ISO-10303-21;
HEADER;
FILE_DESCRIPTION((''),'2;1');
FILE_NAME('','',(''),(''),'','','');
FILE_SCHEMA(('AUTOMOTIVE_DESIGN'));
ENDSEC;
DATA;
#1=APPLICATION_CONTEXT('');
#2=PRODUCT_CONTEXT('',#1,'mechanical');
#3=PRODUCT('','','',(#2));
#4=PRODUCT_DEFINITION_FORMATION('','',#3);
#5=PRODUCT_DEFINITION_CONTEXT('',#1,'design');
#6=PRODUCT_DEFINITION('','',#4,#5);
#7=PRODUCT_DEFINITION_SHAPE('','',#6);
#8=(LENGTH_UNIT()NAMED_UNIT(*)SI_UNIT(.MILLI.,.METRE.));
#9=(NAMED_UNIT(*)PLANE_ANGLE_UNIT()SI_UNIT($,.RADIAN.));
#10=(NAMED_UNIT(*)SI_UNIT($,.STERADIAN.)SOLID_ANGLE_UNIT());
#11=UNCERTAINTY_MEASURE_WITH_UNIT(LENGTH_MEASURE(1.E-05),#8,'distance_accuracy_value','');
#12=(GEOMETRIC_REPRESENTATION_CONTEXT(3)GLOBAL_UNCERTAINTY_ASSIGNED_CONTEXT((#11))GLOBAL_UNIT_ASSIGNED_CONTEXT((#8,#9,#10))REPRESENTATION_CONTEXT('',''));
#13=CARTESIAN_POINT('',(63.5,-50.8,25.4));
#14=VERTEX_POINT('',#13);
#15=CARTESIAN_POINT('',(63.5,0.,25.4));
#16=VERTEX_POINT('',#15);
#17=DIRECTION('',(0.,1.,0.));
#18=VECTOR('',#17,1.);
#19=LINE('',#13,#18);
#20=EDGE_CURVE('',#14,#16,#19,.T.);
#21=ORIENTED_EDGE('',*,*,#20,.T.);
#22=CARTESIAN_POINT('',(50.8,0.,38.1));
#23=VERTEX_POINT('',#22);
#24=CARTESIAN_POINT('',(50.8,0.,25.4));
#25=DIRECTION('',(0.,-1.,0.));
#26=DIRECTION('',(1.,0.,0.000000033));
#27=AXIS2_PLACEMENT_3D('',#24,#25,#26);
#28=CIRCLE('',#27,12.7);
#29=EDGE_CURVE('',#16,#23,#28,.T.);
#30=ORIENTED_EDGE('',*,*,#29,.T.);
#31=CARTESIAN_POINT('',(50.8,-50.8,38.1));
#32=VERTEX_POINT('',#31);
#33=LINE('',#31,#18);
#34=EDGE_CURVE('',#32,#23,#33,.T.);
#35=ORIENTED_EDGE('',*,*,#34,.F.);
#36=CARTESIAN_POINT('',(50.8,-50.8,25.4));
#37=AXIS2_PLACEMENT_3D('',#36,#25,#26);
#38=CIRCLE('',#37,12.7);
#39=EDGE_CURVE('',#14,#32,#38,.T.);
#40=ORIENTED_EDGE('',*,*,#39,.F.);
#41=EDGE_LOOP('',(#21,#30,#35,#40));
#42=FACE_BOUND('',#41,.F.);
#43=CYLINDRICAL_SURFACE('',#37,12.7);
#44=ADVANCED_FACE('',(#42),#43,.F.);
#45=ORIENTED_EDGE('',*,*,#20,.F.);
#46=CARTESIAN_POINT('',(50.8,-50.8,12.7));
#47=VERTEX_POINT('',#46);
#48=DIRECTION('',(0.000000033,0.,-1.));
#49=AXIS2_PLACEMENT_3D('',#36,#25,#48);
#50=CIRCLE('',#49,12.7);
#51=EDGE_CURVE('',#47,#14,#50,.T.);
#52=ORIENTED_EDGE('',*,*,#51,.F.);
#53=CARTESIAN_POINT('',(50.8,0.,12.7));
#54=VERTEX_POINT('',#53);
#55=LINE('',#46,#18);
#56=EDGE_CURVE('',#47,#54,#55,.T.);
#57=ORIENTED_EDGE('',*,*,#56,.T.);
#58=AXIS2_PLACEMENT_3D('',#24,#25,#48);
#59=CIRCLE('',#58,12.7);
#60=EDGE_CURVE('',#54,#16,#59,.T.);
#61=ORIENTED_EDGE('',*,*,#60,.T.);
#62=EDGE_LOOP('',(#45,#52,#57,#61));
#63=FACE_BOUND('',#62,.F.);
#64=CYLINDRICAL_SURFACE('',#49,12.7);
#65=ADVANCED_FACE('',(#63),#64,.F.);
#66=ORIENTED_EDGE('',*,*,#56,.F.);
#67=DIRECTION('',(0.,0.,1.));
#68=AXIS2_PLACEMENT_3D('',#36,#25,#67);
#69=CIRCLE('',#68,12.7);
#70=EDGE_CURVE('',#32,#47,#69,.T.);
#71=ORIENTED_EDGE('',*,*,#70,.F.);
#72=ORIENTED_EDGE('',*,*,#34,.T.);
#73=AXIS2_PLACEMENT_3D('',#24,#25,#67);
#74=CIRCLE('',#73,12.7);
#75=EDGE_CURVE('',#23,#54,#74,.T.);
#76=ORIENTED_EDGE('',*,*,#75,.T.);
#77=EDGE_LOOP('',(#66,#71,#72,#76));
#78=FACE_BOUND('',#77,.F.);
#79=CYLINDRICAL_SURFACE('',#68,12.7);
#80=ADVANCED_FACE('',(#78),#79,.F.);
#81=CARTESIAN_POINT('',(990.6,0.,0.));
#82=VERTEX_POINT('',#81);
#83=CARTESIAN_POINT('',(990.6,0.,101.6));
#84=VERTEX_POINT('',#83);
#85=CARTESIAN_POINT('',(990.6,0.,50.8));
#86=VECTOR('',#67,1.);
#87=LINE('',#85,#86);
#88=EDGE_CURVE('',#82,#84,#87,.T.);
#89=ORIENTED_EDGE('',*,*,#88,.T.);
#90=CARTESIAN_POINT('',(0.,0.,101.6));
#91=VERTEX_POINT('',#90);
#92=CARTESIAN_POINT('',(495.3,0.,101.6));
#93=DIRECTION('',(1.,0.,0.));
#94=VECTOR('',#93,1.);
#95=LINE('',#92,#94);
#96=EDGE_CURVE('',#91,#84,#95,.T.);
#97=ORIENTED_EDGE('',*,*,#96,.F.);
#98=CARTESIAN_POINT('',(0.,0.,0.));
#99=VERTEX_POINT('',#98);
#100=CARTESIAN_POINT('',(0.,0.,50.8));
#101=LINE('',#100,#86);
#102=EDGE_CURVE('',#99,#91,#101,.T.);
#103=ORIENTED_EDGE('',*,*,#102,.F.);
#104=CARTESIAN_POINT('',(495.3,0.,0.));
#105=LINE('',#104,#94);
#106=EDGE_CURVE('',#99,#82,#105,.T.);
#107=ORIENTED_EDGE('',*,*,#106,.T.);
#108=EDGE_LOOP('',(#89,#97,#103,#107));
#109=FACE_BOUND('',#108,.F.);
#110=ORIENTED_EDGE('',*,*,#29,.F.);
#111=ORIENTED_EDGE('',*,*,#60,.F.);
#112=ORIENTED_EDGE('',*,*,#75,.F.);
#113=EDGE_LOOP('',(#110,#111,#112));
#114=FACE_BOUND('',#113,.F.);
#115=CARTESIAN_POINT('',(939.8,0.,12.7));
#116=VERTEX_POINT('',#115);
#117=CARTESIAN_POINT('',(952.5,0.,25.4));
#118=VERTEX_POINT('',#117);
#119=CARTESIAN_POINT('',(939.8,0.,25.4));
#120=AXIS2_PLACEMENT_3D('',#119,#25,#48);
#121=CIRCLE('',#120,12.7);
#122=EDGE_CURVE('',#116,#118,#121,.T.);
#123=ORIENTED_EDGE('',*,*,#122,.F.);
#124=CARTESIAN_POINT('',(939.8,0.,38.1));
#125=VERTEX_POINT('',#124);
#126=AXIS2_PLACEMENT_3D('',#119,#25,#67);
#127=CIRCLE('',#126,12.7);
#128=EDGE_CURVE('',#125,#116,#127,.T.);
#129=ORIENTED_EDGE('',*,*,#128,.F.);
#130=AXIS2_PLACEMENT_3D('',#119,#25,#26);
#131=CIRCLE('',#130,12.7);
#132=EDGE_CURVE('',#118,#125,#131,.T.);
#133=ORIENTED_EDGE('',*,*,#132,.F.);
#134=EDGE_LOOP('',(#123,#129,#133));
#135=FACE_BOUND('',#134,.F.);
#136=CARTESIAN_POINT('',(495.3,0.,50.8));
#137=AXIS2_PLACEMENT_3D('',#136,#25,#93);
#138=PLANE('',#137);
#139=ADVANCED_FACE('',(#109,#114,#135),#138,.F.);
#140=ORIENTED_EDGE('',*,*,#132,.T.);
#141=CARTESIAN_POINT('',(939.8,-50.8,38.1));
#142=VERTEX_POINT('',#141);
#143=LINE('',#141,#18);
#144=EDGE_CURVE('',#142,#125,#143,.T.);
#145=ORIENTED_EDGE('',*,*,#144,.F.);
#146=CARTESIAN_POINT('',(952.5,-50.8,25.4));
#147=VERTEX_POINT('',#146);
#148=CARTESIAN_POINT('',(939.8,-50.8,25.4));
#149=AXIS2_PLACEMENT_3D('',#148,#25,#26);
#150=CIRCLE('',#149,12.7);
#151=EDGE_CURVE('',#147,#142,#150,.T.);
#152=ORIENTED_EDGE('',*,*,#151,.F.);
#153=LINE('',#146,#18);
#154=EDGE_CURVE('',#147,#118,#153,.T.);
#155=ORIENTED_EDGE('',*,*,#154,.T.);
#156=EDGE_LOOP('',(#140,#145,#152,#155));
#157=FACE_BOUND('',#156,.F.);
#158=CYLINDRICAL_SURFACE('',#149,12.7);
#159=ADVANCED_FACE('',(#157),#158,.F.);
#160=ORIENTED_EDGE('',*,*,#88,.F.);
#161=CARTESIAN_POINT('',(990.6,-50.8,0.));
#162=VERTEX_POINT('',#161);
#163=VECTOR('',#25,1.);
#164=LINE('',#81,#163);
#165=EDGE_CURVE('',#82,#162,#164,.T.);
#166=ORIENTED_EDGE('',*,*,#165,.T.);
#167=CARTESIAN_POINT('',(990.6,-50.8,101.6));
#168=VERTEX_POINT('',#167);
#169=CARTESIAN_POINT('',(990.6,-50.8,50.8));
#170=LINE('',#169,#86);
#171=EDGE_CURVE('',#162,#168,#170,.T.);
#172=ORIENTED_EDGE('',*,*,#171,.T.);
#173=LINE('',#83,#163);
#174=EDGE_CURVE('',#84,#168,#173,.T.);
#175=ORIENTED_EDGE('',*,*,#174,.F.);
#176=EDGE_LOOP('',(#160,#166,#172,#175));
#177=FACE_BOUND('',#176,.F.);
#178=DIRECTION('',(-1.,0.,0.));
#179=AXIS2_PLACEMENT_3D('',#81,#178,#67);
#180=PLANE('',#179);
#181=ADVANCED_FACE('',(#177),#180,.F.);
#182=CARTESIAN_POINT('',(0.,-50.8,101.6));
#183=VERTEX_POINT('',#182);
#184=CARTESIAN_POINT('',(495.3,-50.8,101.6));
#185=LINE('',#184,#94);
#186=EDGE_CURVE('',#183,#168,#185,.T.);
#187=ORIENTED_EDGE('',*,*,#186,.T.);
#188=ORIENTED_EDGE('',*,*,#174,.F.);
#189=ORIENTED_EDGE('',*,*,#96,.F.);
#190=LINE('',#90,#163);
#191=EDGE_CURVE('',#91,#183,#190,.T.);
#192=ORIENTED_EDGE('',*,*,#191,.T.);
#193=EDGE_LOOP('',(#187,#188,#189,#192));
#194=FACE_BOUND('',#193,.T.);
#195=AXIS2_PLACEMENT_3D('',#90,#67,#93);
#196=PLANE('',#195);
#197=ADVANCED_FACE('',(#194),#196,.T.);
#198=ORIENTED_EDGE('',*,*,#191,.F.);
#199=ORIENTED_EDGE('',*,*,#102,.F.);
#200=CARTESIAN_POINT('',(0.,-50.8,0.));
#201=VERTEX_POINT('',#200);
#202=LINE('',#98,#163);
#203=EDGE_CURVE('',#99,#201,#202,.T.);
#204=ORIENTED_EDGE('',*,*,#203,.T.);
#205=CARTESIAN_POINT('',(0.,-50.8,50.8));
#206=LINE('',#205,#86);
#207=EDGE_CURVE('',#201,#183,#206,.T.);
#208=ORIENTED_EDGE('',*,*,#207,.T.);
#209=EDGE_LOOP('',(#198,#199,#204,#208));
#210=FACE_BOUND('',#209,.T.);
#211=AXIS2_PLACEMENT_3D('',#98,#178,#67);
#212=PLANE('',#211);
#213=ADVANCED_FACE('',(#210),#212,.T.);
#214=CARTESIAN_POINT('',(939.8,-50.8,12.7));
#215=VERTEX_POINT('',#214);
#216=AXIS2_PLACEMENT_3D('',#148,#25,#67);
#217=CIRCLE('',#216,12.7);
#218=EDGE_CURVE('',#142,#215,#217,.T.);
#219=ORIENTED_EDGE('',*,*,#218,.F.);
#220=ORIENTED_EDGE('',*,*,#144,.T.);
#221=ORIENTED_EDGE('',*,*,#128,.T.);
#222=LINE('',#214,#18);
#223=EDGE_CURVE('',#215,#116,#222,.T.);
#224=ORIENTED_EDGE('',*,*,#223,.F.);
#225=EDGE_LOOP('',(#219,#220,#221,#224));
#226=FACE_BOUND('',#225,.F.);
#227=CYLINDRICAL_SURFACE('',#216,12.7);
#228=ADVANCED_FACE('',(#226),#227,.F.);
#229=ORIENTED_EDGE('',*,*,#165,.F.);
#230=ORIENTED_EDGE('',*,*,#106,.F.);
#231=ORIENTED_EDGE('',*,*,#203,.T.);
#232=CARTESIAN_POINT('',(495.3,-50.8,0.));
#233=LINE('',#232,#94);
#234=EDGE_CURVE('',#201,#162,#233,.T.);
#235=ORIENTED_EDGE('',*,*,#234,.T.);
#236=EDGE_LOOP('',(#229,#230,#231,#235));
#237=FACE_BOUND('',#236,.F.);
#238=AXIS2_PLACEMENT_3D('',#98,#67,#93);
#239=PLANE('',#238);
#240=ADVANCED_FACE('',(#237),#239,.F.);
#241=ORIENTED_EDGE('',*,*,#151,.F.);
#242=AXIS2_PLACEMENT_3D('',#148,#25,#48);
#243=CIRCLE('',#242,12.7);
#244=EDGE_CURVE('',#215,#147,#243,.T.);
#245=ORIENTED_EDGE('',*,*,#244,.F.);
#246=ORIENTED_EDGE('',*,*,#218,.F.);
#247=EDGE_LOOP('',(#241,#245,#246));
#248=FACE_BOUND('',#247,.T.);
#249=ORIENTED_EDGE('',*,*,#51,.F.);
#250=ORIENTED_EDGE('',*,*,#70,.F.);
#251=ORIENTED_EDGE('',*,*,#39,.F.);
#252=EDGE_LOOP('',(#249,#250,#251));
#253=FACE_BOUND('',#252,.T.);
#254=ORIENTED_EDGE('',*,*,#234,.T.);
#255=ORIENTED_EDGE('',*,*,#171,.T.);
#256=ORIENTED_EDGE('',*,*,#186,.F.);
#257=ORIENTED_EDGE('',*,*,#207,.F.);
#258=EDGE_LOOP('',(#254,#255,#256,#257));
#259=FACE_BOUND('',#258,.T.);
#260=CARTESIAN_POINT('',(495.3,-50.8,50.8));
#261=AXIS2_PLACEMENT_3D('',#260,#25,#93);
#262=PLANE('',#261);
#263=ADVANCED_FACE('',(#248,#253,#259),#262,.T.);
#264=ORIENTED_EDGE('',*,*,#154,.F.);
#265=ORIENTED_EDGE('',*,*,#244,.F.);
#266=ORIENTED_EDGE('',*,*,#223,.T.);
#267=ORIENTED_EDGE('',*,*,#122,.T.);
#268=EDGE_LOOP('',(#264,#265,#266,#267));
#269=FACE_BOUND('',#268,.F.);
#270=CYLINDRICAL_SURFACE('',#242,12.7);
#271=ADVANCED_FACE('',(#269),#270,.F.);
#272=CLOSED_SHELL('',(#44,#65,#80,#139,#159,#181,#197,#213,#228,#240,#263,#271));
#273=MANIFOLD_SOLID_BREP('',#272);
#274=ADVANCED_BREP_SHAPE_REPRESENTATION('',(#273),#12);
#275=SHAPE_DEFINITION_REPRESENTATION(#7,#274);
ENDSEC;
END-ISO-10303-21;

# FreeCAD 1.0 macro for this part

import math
import FreeCAD as App
import Part
import Sketcher
from FreeCAD import Vector
Q = App.Units.Quantity

doc = App.newDocument("Part")
params = doc.addObject("Spreadsheet::Sheet", "Params")
for row, (alias, value) in enumerate([
    ("sketch1_width", "39 in"),
    ("sketch1_height", "4 in"),
    ("pad1_length", "2 in"),
    ("sketch2_radius", "0.5 in"),
], start=1):
    params.set(f"A{row}", alias)
    params.set(f"B{row}", "=" + value)
    params.setAlias(f"B{row}", alias)

body = doc.addObject("PartDesign::Body", "Body")

# Sketch on XZ plane
sketch1 = body.newObject("Sketcher::SketchObject", "Sketch")
sketch1.AttachmentSupport = (doc.getObject("XZ_Plane"), [""])
sketch1.MapMode = "FlatFace"
sketch1.addGeometry([
    Part.LineSegment(Vector(0, 102, 0), Vector(0, 0, 0)),
    Part.LineSegment(Vector(0, 0, 0), Vector(991, 0, 0)),
    Part.LineSegment(Vector(991, 0, 0), Vector(991, 102, 0)),
    Part.LineSegment(Vector(991, 102, 0), Vector(0, 102, 0)),
], False)
sketch1.addConstraint([
    Sketcher.Constraint("Coincident", 0, 2, 1, 1),
    Sketcher.Constraint("Coincident", 1, 2, 2, 1),
    Sketcher.Constraint("Coincident", 2, 2, 3, 1),
    Sketcher.Constraint("Coincident", 3, 2, 0, 1),
    Sketcher.Constraint("Vertical", 0),
    Sketcher.Constraint("Horizontal", 1),
    Sketcher.Constraint("Vertical", 2),
    Sketcher.Constraint("Horizontal", 3),
    Sketcher.Constraint("Coincident", 0, 2, -1, 1),
    Sketcher.Constraint("DistanceX", 1, 1, 1, 2, Q("39 in")),
    Sketcher.Constraint("DistanceY", 0, 2, 0, 1, Q("4 in")),
])
sketch1.setExpression("Constraints[9]", "Params.sketch1_width")
sketch1.setExpression("Constraints[10]", "Params.sketch1_height")
pad1 = body.newObject("PartDesign::Pad", "Pad")
pad1.Profile = sketch1
pad1.setExpression("Length", "Params.pad1_length")

# Sketch on XZ plane
sketch2 = body.newObject("Sketcher::SketchObject", "Sketch001")
sketch2.AttachmentSupport = (doc.getObject("XZ_Plane"), [""])
sketch2.MapMode = "FlatFace"
sketch2.AttachmentOffset = App.Placement(Vector(0, 0, 2 * 25.4), App.Rotation())
sketch2.addGeometry([
    Part.ArcOfCircle(Part.Circle(Vector(51, 25, 0), Vector(0, 0, 1), 13), math.radians(0), math.radians(90)),  # 0
    Part.ArcOfCircle(Part.Circle(Vector(51, 25, 0), Vector(0, 0, 1), 13), math.radians(90), math.radians(270)),  # 1
    Part.ArcOfCircle(Part.Circle(Vector(51, 25, 0), Vector(0, 0, 1), 13), math.radians(-90), math.radians(0)),  # 2
    Part.ArcOfCircle(Part.Circle(Vector(940, 25, 0), Vector(0, 0, 1), 13), math.radians(0), math.radians(90)),  # 3
    Part.ArcOfCircle(Part.Circle(Vector(940, 25, 0), Vector(0, 0, 1), 13), math.radians(90), math.radians(270)),  # 4
    Part.ArcOfCircle(Part.Circle(Vector(940, 25, 0), Vector(0, 0, 1), 13), math.radians(-90), math.radians(0)),  # 5
], False)
sketch2.addConstraint([
    Sketcher.Constraint("Tangent", 0, 2, 1, 1),
    Sketcher.Constraint("Tangent", 1, 2, 2, 1),
    Sketcher.Constraint("Tangent", 2, 2, 0, 1),
    Sketcher.Constraint("Tangent", 3, 2, 4, 1),
    Sketcher.Constraint("Tangent", 4, 2, 5, 1),
    Sketcher.Constraint("Tangent", 5, 2, 3, 1),
    Sketcher.Constraint("Equal", 2, 3),
    Sketcher.Constraint("Horizontal", 2, 3, 3, 3),
    Sketcher.Constraint("Horizontal", 5, 3, 2, 2),
    Sketcher.Constraint("Horizontal", 2, 2, 5, 2),
    Sketcher.Constraint("Vertical", 2, 3, 0, 2),
    Sketcher.Constraint("Vertical", 0, 2, 1, 2),
    Sketcher.Constraint("Vertical", 5, 3, 3, 2),
    Sketcher.Constraint("Vertical", 3, 2, 4, 2),
    Sketcher.Constraint("Radius", 0, Q("0.5 in")),
    Sketcher.Constraint("DistanceX", -1, 1, 0, 3, Q("2 in")),
    Sketcher.Constraint("DistanceY", -1, 1, 0, 3, Q("1 in")),
    Sketcher.Constraint("DistanceX", -1, 1, 3, 3, Q("37 in")),
])
sketch2.setExpression("Constraints[14]", "Params.sketch2_radius")
pocket1 = body.newObject("PartDesign::Pocket", "Pocket")
pocket1.Profile = sketch2
pocket1.Type = "ThroughAll"

doc.recompute()
